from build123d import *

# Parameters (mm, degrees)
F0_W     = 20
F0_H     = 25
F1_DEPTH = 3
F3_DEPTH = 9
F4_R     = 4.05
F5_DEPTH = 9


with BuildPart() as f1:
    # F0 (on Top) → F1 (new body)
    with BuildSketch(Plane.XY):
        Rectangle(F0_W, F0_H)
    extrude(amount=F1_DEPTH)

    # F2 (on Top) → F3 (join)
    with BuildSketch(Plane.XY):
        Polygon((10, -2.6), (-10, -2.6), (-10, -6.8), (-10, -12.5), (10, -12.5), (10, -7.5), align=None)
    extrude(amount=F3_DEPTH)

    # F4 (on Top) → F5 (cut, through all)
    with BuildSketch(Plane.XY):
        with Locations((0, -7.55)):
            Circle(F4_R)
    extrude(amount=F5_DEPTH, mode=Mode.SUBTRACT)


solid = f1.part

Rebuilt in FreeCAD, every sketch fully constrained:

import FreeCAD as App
import Part
import Sketcher
Q = App.Units.Quantity

doc = App.newDocument("Part")
body = doc.addObject("PartDesign::Body", "Body")

sketch1 = doc.addObject("Sketcher::SketchObject", "Sketch")
body.addObject(sketch1)
sketch1.AttachmentSupport = (doc.XY_Plane, [""])
sketch1.MapMode = "FlatFace"
sketch1.addGeometry(Part.LineSegment(App.Vector(-10, 12, 0), App.Vector(-10, -12, 0)), False)
sketch1.addGeometry(Part.LineSegment(App.Vector(-10, -12, 0), App.Vector(10, -12, 0)), False)
sketch1.addGeometry(Part.LineSegment(App.Vector(10, -12, 0), App.Vector(10, 12, 0)), False)
sketch1.addGeometry(Part.LineSegment(App.Vector(10, 12, 0), App.Vector(-10, 12, 0)), False)
sketch1.addConstraint(Sketcher.Constraint("Coincident", 0, 2, 1, 1))
sketch1.addConstraint(Sketcher.Constraint("Coincident", 1, 2, 2, 1))
sketch1.addConstraint(Sketcher.Constraint("Coincident", 2, 2, 3, 1))
sketch1.addConstraint(Sketcher.Constraint("Coincident", 3, 2, 0, 1))
sketch1.addConstraint(Sketcher.Constraint("Vertical", 0))
sketch1.addConstraint(Sketcher.Constraint("Horizontal", 1))
sketch1.addConstraint(Sketcher.Constraint("Vertical", 2))
sketch1.addConstraint(Sketcher.Constraint("Horizontal", 3))
sketch1.addConstraint(Sketcher.Constraint("Symmetric", 0, 2, 2, 2, -1, 1))
sketch1.addConstraint(Sketcher.Constraint("DistanceX", 1, 1, 1, 2, Q("20 mm")))
sketch1.addConstraint(Sketcher.Constraint("DistanceY", 0, 2, 0, 1, Q("25 mm")))
pad1 = doc.addObject("PartDesign::Pad", "Pad")
body.addObject(pad1)
pad1.Profile = sketch1
pad1.Length = 3

sketch2 = doc.addObject("Sketcher::SketchObject", "Sketch001")
body.addObject(sketch2)
sketch2.AttachmentSupport = (doc.XY_Plane, [""])
sketch2.MapMode = "FlatFace"
sketch2.addGeometry(Part.LineSegment(App.Vector(10, -3, 0), App.Vector(-10, -3, 0)), False)
sketch2.addGeometry(Part.LineSegment(App.Vector(-10, -3, 0), App.Vector(-10, -12, 0)), False)
sketch2.addGeometry(Part.LineSegment(App.Vector(-10, -12, 0), App.Vector(10, -12, 0)), False)
sketch2.addGeometry(Part.LineSegment(App.Vector(10, -12, 0), App.Vector(10, -3, 0)), False)
sketch2.addConstraint(Sketcher.Constraint("Coincident", 0, 2, 1, 1))
sketch2.addConstraint(Sketcher.Constraint("Coincident", 1, 2, 2, 1))
sketch2.addConstraint(Sketcher.Constraint("Coincident", 2, 2, 3, 1))
sketch2.addConstraint(Sketcher.Constraint("Coincident", 3, 2, 0, 1))
sketch2.addConstraint(Sketcher.Constraint("Horizontal", 0))
sketch2.addConstraint(Sketcher.Constraint("Vertical", 1))
sketch2.addConstraint(Sketcher.Constraint("Horizontal", 2))
sketch2.addConstraint(Sketcher.Constraint("Vertical", 3))
sketch2.addConstraint(Sketcher.Constraint("DistanceX", 0, 2, 0, 1, Q("20 mm")))
sketch2.addConstraint(Sketcher.Constraint("DistanceY", 1, 2, 1, 1, Q("9.9 mm")))
sketch2.addConstraint(Sketcher.Constraint("DistanceX", 0, 2, -1, 1, Q("10 mm")))
sketch2.addConstraint(Sketcher.Constraint("DistanceY", 0, 2, -1, 1, Q("2.6 mm")))
pad2 = doc.addObject("PartDesign::Pad", "Pad001")
body.addObject(pad2)
pad2.Profile = sketch2
pad2.Length = 9

sketch3 = doc.addObject("Sketcher::SketchObject", "Sketch002")
body.addObject(sketch3)
sketch3.AttachmentSupport = (doc.XY_Plane, [""])
sketch3.MapMode = "FlatFace"
sketch3.addGeometry(Part.Circle(App.Vector(0, -7.5, 0), App.Vector(0, 0, 1), 4), False)
sketch3.addConstraint(Sketcher.Constraint("PointOnObject", 0, 3, -2))
sketch3.addConstraint(Sketcher.Constraint("Diameter", 0, Q("8.1 mm")))
sketch3.addConstraint(Sketcher.Constraint("DistanceY", 0, 3, -1, 1, Q("7.55 mm")))
pocket1 = doc.addObject("PartDesign::Pocket", "Pocket")
body.addObject(pocket1)
pocket1.Profile = sketch3
pocket1.Type = "ThroughAll"
pocket1.Reversed = True

doc.recompute()
